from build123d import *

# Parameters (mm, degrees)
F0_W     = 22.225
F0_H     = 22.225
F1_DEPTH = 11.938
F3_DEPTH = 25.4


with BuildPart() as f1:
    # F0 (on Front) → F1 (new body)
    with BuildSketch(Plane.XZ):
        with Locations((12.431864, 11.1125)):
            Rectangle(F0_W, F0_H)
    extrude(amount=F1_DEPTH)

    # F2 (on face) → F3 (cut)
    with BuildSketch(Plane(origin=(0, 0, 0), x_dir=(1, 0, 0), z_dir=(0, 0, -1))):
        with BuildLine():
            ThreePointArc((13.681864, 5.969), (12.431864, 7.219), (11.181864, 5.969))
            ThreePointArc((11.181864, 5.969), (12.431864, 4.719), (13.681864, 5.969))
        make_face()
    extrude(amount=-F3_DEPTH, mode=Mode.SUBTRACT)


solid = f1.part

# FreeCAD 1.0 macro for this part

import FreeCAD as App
import Part
import Sketcher
Q = App.Units.Quantity

doc = App.newDocument("Part")
body = doc.addObject("PartDesign::Body", "Body")

sketch1 = body.newObject("Sketcher::SketchObject", "Sketch")
sketch1.AttachmentSupport = (doc.getObject("XZ_Plane"), [""])
sketch1.MapMode = "FlatFace"
sketch1.addGeometry([
    Part.LineSegment(App.Vector(1.319364, 22.225, 0), App.Vector(1.319364, 0, 0)),
    Part.LineSegment(App.Vector(1.319364, 0, 0), App.Vector(23.544364, 0, 0)),
    Part.LineSegment(App.Vector(23.544364, 0, 0), App.Vector(23.544364, 22.225, 0)),
    Part.LineSegment(App.Vector(23.544364, 22.225, 0), App.Vector(1.319364, 22.225, 0)),
], False)
sketch1.addConstraint([
    Sketcher.Constraint("Coincident", 0, 2, 1, 1),
    Sketcher.Constraint("Coincident", 1, 2, 2, 1),
    Sketcher.Constraint("Coincident", 2, 2, 3, 1),
    Sketcher.Constraint("Coincident", 3, 2, 0, 1),
    Sketcher.Constraint("Vertical", 0),
    Sketcher.Constraint("Horizontal", 1),
    Sketcher.Constraint("Vertical", 2),
    Sketcher.Constraint("Horizontal", 3),
    Sketcher.Constraint("PointOnObject", 0, 2, -1),
    Sketcher.Constraint("Equal", 3, 0),
    Sketcher.Constraint("DistanceX", 1, 1, 1, 2, Q("0.875 in")),
    Sketcher.Constraint("DistanceX", -1, 1, 0, 2, Q("1.319364 mm")),
])
pad1 = body.newObject("PartDesign::Pad", "Pad")
pad1.Profile = sketch1
pad1.Length = Q("0.47 in")

sketch2 = body.newObject("Sketcher::SketchObject", "Sketch001")
sketch2.AttachmentSupport = (doc.getObject("XY_Plane"), [""])
sketch2.MapMode = "FlatFace"
sketch2.addGeometry(Part.Circle(App.Vector(12.431864, -5.969, 0), App.Vector(0, 0, 1), 1.25), False)
sketch2.addConstraint([
    Sketcher.Constraint("Diameter", 0, Q("2.5 mm")),
    Sketcher.Constraint("DistanceY", 0, 3, -1, 1, Q("0.235 in")),
    Sketcher.Constraint("DistanceX", -1, 1, 0, 3, Q("12.431864 mm")),
])
pocket1 = body.newObject("PartDesign::Pocket", "Pocket")
pocket1.Profile = sketch2
pocket1.Length = Q("1 in")
pocket1.Reversed = True

doc.recompute()
